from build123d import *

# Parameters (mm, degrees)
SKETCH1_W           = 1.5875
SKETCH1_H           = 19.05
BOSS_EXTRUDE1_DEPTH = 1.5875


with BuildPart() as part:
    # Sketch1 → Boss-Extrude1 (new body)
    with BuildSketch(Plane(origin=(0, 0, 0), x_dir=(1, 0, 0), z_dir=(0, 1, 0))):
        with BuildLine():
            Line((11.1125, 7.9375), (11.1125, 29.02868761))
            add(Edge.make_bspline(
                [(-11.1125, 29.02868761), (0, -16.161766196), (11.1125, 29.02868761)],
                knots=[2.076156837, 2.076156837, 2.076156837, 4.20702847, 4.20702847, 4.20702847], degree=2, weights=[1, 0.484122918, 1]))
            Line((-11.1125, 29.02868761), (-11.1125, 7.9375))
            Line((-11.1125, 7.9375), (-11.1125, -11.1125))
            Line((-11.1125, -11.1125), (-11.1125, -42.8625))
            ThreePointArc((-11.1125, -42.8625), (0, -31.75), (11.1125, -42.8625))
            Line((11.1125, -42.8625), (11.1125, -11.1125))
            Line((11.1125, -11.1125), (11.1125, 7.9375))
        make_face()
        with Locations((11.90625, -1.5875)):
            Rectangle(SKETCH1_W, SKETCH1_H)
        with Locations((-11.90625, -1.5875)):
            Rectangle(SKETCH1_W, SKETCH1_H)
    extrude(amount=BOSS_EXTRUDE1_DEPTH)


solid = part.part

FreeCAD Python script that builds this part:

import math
import FreeCAD as App
import Part
import Sketcher
Q = App.Units.Quantity

doc = App.newDocument("Part")
body = doc.addObject("PartDesign::Body", "Body")

# Sketch on XZ plane
sketch1 = body.newObject("Sketcher::SketchObject", "Sketch")
sketch1.AttachmentSupport = (doc.getObject("XZ_Plane"), [""])
sketch1.MapMode = "FlatFace"
sketch1.addGeometry(Part.BSplineCurve([App.Vector(-11.1125, -29.028688, 0), App.Vector(0, 16.161766, 0), App.Vector(11.1125, -29.028688, 0)], [3, 3], [2.076156837, 4.20702847], False, 2, [1, 0.484122918, 1], False), False)
sketch1.addGeometry(Part.LineSegment(App.Vector(-11.1125, -29.028688, 0), App.Vector(-11.1125, -7.9375, 0)), False)
sketch1.addGeometry(Part.LineSegment(App.Vector(-11.1125, -7.9375, 0), App.Vector(-12.7, -7.9375, 0)), False)
sketch1.addGeometry(Part.LineSegment(App.Vector(-12.7, -7.9375, 0), App.Vector(-12.7, 11.1125, 0)), False)
sketch1.addGeometry(Part.LineSegment(App.Vector(-12.7, 11.1125, 0), App.Vector(-11.1125, 11.1125, 0)), False)
sketch1.addGeometry(Part.LineSegment(App.Vector(-11.1125, 11.1125, 0), App.Vector(-11.1125, 42.8625, 0)), False)
sketch1.addGeometry(Part.ArcOfCircle(Part.Circle(App.Vector(0, 42.8625, 0), App.Vector(0, 0, 1), 11.1125), math.radians(180), math.radians(360)), False)
sketch1.addGeometry(Part.LineSegment(App.Vector(11.1125, 42.8625, 0), App.Vector(11.1125, 11.1125, 0)), False)
sketch1.addGeometry(Part.LineSegment(App.Vector(11.1125, 11.1125, 0), App.Vector(12.7, 11.1125, 0)), False)
sketch1.addGeometry(Part.LineSegment(App.Vector(12.7, 11.1125, 0), App.Vector(12.7, -7.9375, 0)), False)
sketch1.addGeometry(Part.LineSegment(App.Vector(12.7, -7.9375, 0), App.Vector(11.1125, -7.9375, 0)), False)
sketch1.addGeometry(Part.LineSegment(App.Vector(11.1125, -7.9375, 0), App.Vector(11.1125, -29.028688, 0)), False)
sketch1.addConstraint(Sketcher.Constraint("Block", 0))
sketch1.addConstraint(Sketcher.Constraint("Coincident", 0, 1, 1, 1))
sketch1.addConstraint(Sketcher.Constraint("Coincident", 1, 2, 2, 1))
sketch1.addConstraint(Sketcher.Constraint("Coincident", 2, 2, 3, 1))
sketch1.addConstraint(Sketcher.Constraint("Coincident", 3, 2, 4, 1))
sketch1.addConstraint(Sketcher.Constraint("Coincident", 4, 2, 5, 1))
sketch1.addConstraint(Sketcher.Constraint("Tangent", 5, 2, 6, 1))
sketch1.addConstraint(Sketcher.Constraint("Tangent", 6, 2, 7, 1))
sketch1.addConstraint(Sketcher.Constraint("Coincident", 7, 2, 8, 1))
sketch1.addConstraint(Sketcher.Constraint("Coincident", 8, 2, 9, 1))
sketch1.addConstraint(Sketcher.Constraint("Coincident", 9, 2, 10, 1))
sketch1.addConstraint(Sketcher.Constraint("Coincident", 10, 2, 11, 1))
sketch1.addConstraint(Sketcher.Constraint("Coincident", 11, 2, 0, 2))
sketch1.addConstraint(Sketcher.Constraint("Vertical", 1))
sketch1.addConstraint(Sketcher.Constraint("Horizontal", 2))
sketch1.addConstraint(Sketcher.Constraint("Vertical", 3))
sketch1.addConstraint(Sketcher.Constraint("Horizontal", 4))
sketch1.addConstraint(Sketcher.Constraint("Vertical", 5))
sketch1.addConstraint(Sketcher.Constraint("Vertical", 7))
sketch1.addConstraint(Sketcher.Constraint("Horizontal", 8))
sketch1.addConstraint(Sketcher.Constraint("Vertical", 9))
sketch1.addConstraint(Sketcher.Constraint("Horizontal", 10))
sketch1.addConstraint(Sketcher.Constraint("Vertical", 11))
sketch1.addConstraint(Sketcher.Constraint("Symmetric", 4, 2, 7, 2, -2))
sketch1.addConstraint(Sketcher.Constraint("Symmetric", 2, 2, 9, 2, -2))
sketch1.addConstraint(Sketcher.Constraint("Vertical", 1, 2, 4, 2))
sketch1.addConstraint(Sketcher.Constraint("DistanceY", 1, 2, 6, 3, Q("2 in")))
sketch1.addConstraint(Sketcher.Constraint("DistanceX", 3, 2, 8, 2, Q("1 in")))
sketch1.addConstraint(Sketcher.Constraint("DistanceY", 3, 1, 3, 2, Q("0.75 in")))
sketch1.addConstraint(Sketcher.Constraint("DistanceY", -1, 1, 6, 3, Q("1.6875 in")))
pad1 = body.newObject("PartDesign::Pad", "Pad")
pad1.Profile = sketch1
pad1.Length = Q("0.0625 in")
pad1.Reversed = True

doc.recompute()
